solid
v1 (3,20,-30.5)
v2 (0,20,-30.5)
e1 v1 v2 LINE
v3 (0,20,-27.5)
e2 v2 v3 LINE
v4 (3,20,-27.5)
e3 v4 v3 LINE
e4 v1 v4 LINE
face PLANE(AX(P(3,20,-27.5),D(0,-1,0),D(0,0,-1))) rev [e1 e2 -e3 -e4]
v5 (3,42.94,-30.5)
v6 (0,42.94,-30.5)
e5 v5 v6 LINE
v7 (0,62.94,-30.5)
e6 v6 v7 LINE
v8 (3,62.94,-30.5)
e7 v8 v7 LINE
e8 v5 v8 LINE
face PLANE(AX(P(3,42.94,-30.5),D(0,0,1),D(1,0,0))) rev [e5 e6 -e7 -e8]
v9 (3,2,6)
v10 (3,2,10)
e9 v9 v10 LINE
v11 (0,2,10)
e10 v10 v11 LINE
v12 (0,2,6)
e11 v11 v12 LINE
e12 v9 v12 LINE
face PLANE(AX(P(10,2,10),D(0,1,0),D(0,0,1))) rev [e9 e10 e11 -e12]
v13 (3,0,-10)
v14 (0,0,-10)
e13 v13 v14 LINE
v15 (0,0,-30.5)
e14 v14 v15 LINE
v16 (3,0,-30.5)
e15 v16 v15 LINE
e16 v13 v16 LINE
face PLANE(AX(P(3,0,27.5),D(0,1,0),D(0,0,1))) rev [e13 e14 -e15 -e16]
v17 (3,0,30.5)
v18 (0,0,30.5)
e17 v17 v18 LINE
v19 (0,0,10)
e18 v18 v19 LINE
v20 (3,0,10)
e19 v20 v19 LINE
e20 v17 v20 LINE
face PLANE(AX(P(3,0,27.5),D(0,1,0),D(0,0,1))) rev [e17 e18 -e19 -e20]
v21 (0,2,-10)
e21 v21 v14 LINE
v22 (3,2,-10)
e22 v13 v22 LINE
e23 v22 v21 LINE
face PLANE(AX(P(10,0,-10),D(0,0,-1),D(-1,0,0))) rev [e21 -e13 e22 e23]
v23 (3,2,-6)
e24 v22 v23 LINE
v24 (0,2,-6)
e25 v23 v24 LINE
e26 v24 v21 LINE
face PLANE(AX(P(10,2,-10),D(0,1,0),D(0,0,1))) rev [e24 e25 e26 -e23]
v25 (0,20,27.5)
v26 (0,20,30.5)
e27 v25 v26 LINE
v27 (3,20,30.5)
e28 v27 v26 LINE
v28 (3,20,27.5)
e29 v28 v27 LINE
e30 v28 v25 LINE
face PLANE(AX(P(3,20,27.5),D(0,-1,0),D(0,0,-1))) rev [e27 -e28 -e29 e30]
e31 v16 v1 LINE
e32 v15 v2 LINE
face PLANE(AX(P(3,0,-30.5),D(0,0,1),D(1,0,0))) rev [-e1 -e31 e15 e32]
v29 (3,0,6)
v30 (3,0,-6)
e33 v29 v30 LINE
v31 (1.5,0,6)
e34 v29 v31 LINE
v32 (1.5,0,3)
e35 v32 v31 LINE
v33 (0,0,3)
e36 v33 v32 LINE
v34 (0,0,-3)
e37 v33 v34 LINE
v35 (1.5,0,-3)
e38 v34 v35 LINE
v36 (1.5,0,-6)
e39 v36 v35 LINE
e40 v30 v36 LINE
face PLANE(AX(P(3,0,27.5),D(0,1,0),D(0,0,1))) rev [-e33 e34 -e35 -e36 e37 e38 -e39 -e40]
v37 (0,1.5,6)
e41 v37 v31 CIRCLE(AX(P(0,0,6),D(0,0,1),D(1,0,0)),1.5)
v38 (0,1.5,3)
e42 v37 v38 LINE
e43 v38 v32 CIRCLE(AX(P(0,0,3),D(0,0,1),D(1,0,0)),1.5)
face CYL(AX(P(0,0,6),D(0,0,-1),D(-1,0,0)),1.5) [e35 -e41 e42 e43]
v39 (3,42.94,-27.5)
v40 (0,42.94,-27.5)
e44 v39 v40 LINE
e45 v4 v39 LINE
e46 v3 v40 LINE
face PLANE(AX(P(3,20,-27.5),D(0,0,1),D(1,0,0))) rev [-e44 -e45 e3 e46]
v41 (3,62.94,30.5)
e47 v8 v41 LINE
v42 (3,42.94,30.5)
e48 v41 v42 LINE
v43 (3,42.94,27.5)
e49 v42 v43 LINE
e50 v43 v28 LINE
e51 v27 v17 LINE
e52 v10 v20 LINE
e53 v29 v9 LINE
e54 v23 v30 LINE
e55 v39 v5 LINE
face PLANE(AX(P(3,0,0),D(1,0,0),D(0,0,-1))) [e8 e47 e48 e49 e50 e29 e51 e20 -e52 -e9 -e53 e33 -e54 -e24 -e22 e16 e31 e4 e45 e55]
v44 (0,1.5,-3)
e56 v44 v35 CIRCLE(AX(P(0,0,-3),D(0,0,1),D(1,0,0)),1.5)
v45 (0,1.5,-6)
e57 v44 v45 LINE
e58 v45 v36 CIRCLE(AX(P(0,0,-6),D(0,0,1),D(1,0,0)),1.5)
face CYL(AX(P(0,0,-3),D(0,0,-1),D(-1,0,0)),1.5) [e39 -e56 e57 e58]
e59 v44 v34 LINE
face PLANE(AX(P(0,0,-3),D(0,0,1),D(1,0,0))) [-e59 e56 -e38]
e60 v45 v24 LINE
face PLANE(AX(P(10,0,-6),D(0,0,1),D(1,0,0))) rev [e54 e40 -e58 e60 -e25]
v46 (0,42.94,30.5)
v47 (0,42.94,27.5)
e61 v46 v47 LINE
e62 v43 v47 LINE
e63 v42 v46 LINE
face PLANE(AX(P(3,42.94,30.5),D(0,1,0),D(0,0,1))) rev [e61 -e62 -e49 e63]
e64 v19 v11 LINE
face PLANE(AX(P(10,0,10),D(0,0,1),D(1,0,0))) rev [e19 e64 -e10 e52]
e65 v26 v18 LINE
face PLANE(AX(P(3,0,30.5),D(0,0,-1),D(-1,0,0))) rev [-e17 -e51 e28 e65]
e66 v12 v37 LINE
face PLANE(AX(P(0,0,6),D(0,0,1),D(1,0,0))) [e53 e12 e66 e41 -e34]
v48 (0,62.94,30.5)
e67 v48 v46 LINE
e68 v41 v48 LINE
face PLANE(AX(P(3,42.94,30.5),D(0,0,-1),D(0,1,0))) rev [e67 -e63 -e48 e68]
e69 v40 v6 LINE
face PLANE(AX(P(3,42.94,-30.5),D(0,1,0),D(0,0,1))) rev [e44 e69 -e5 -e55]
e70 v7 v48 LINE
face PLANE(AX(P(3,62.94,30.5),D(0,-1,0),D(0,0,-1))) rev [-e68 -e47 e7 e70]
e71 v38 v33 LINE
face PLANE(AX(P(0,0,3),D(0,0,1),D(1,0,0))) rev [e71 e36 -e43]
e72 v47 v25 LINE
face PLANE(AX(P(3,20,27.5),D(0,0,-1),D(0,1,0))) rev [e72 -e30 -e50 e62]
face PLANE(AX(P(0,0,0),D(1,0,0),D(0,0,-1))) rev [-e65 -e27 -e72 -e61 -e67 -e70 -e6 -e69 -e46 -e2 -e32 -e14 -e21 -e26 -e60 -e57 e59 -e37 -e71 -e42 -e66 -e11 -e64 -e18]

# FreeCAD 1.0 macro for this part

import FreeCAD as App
import Part
import Sketcher
from FreeCAD import Vector
Q = App.Units.Quantity

doc = App.newDocument("Part")
body = doc.addObject("PartDesign::Body", "Body")

sketch1 = body.newObject("Sketcher::SketchObject", "Sketch")
sketch1.AttachmentSupport = (doc.getObject("YZ_Plane"), [""])
sketch1.MapMode = "FlatFace"
sketch1.addGeometry(Part.LineSegment(Vector(0, -30.5, 0), Vector(20, -30.5, 0)), False)
sketch1.addGeometry(Part.LineSegment(Vector(20, -30.5, 0), Vector(20, -27.5, 0)), False)
sketch1.addGeometry(Part.LineSegment(Vector(20, -27.5, 0), Vector(42.9, -27.5, 0)), False)
sketch1.addGeometry(Part.LineSegment(Vector(42.9, -27.5, 0), Vector(42.9, -30.5, 0)), False)
sketch1.addGeometry(Part.LineSegment(Vector(42.9, -30.5, 0), Vector(62.9, -30.5, 0)), False)
sketch1.addGeometry(Part.LineSegment(Vector(62.9, -30.5, 0), Vector(62.9, 30.5, 0)), False)
sketch1.addGeometry(Part.LineSegment(Vector(62.9, 30.5, 0), Vector(42.9, 30.5, 0)), False)
sketch1.addGeometry(Part.LineSegment(Vector(42.9, 30.5, 0), Vector(42.9, 27.5, 0)), False)
sketch1.addGeometry(Part.LineSegment(Vector(42.9, 27.5, 0), Vector(20, 27.5, 0)), False)
sketch1.addGeometry(Part.LineSegment(Vector(20, 27.5, 0), Vector(20, 30.5, 0)), False)
sketch1.addGeometry(Part.LineSegment(Vector(20, 30.5, 0), Vector(0, 30.5, 0)), False)
sketch1.addGeometry(Part.LineSegment(Vector(0, 30.5, 0), Vector(0, -30.5, 0)), False)
sketch1.addConstraint(Sketcher.Constraint("Coincident", 0, 2, 1, 1))
sketch1.addConstraint(Sketcher.Constraint("Coincident", 1, 2, 2, 1))
sketch1.addConstraint(Sketcher.Constraint("Coincident", 2, 2, 3, 1))
sketch1.addConstraint(Sketcher.Constraint("Coincident", 3, 2, 4, 1))
sketch1.addConstraint(Sketcher.Constraint("Coincident", 4, 2, 5, 1))
sketch1.addConstraint(Sketcher.Constraint("Coincident", 5, 2, 6, 1))
sketch1.addConstraint(Sketcher.Constraint("Coincident", 6, 2, 7, 1))
sketch1.addConstraint(Sketcher.Constraint("Coincident", 7, 2, 8, 1))
sketch1.addConstraint(Sketcher.Constraint("Coincident", 8, 2, 9, 1))
sketch1.addConstraint(Sketcher.Constraint("Coincident", 9, 2, 10, 1))
sketch1.addConstraint(Sketcher.Constraint("Coincident", 10, 2, 11, 1))
sketch1.addConstraint(Sketcher.Constraint("Coincident", 11, 2, 0, 1))
sketch1.addConstraint(Sketcher.Constraint("Horizontal", 0))
sketch1.addConstraint(Sketcher.Constraint("Vertical", 1))
sketch1.addConstraint(Sketcher.Constraint("Horizontal", 2))
sketch1.addConstraint(Sketcher.Constraint("Vertical", 3))
sketch1.addConstraint(Sketcher.Constraint("Horizontal", 4))
sketch1.addConstraint(Sketcher.Constraint("Vertical", 5))
sketch1.addConstraint(Sketcher.Constraint("Horizontal", 6))
sketch1.addConstraint(Sketcher.Constraint("Vertical", 7))
sketch1.addConstraint(Sketcher.Constraint("Horizontal", 8))
sketch1.addConstraint(Sketcher.Constraint("Vertical", 9))
sketch1.addConstraint(Sketcher.Constraint("Horizontal", 10))
sketch1.addConstraint(Sketcher.Constraint("Vertical", 11))
sketch1.addConstraint(Sketcher.Constraint("Symmetric", 10, 2, 11, 2, -1, 1))
sketch1.addConstraint(Sketcher.Constraint("Symmetric", 3, 2, 6, 2, -1))
sketch1.addConstraint(Sketcher.Constraint("Symmetric", 1, 2, 8, 2, -1))
sketch1.addConstraint(Sketcher.Constraint("Horizontal", 0, 2, 3, 2))
sketch1.addConstraint(Sketcher.Constraint("Equal", 0, 4))
sketch1.addConstraint(Sketcher.Constraint("DistanceX", 0, 1, 0, 2, Q("20 mm")))
sketch1.addConstraint(Sketcher.Constraint("DistanceY", 1, 1, 1, 2, Q("3 mm")))
sketch1.addConstraint(Sketcher.Constraint("DistanceY", 5, 1, 5, 2, Q("61 mm")))
sketch1.addConstraint(Sketcher.Constraint("DistanceX", 2, 1, 2, 2, Q("22.94 mm")))
pad1 = body.newObject("PartDesign::Pad", "Pad")
pad1.Profile = sketch1
pad1.Length = 3

sketch2 = body.newObject("Sketcher::SketchObject", "Sketch001")
sketch2.AttachmentSupport = (doc.getObject("XY_Plane"), [""])
sketch2.MapMode = "FlatFace"
sketch2.AttachmentOffset = App.Placement(Vector(0, 0, 3), App.Rotation())
sketch2.addGeometry(Part.Circle(Vector(0, 0, 0), Vector(0, 0, 1), 1.5), False)
sketch2.addConstraint(Sketcher.Constraint("Coincident", 0, 3, -1, 1))
sketch2.addConstraint(Sketcher.Constraint("Diameter", 0, Q("3 mm")))
pad2 = body.newObject("PartDesign::Pad", "Pad001")
pad2.Profile = sketch2
pad2.Length = 3

sketch3 = body.newObject("Sketcher::SketchObject", "Sketch002")
sketch3.AttachmentSupport = (doc.getObject("YZ_Plane"), [""])
sketch3.MapMode = "FlatFace"
sketch3.addGeometry(Part.LineSegment(Vector(2, -10, 0), Vector(0, -10, 0)), False)
sketch3.addGeometry(Part.LineSegment(Vector(0, -10, 0), Vector(0, -6, 0)), False)
sketch3.addGeometry(Part.LineSegment(Vector(0, -6, 0), Vector(2, -6, 0)), False)
sketch3.addGeometry(Part.LineSegment(Vector(2, -6, 0), Vector(2, -10, 0)), False)
sketch3.addGeometry(Part.LineSegment(Vector(2, 6, 0), Vector(0, 6, 0)), False)
sketch3.addGeometry(Part.LineSegment(Vector(0, 6, 0), Vector(0, 10, 0)), False)
sketch3.addGeometry(Part.LineSegment(Vector(0, 10, 0), Vector(2, 10, 0)), False)
sketch3.addGeometry(Part.LineSegment(Vector(2, 10, 0), Vector(2, 6, 0)), False)
sketch3.addConstraint(Sketcher.Constraint("Coincident", 0, 2, 1, 1))
sketch3.addConstraint(Sketcher.Constraint("Coincident", 1, 2, 2, 1))
sketch3.addConstraint(Sketcher.Constraint("Coincident", 2, 2, 3, 1))
sketch3.addConstraint(Sketcher.Constraint("Coincident", 3, 2, 0, 1))
sketch3.addConstraint(Sketcher.Constraint("Coincident", 4, 2, 5, 1))
sketch3.addConstraint(Sketcher.Constraint("Coincident", 5, 2, 6, 1))
sketch3.addConstraint(Sketcher.Constraint("Coincident", 6, 2, 7, 1))
sketch3.addConstraint(Sketcher.Constraint("Coincident", 7, 2, 4, 1))
sketch3.addConstraint(Sketcher.Constraint("Horizontal", 0))
sketch3.addConstraint(Sketcher.Constraint("Vertical", 1))
sketch3.addConstraint(Sketcher.Constraint("Horizontal", 2))
sketch3.addConstraint(Sketcher.Constraint("Vertical", 3))
sketch3.addConstraint(Sketcher.Constraint("Horizontal", 4))
sketch3.addConstraint(Sketcher.Constraint("Vertical", 5))
sketch3.addConstraint(Sketcher.Constraint("Horizontal", 6))
sketch3.addConstraint(Sketcher.Constraint("Vertical", 7))
sketch3.addConstraint(Sketcher.Constraint("Symmetric", 1, 2, 4, 2, -1, 1))
sketch3.addConstraint(Sketcher.Constraint("Symmetric", 0, 2, 5, 2, -1))
sketch3.addConstraint(Sketcher.Constraint("Vertical", 3, 2, 6, 2))
sketch3.addConstraint(Sketcher.Constraint("DistanceX", 0, 2, 0, 1, Q("2 mm")))
sketch3.addConstraint(Sketcher.Constraint("DistanceY", 1, 1, 1, 2, Q("4 mm")))
sketch3.addConstraint(Sketcher.Constraint("DistanceY", 0, 2, -1, 1, Q("10 mm")))
pocket1 = body.newObject("PartDesign::Pocket", "Pocket")
pocket1.Profile = sketch3
pocket1.Length = 10
pocket1.Reversed = True
doc.recompute()

linearpattern = body.newObject("PartDesign::LinearPattern", "LinearPattern")
linearpattern.Originals = [pad2]
linearpattern.Direction = (doc.getObject("Z_Axis"), [""])
linearpattern.Mode = "offset"
linearpattern.Offset = 9
linearpattern.Occurrences = 2
linearpattern.Reversed = True
body.Tip = linearpattern

doc.recompute()
